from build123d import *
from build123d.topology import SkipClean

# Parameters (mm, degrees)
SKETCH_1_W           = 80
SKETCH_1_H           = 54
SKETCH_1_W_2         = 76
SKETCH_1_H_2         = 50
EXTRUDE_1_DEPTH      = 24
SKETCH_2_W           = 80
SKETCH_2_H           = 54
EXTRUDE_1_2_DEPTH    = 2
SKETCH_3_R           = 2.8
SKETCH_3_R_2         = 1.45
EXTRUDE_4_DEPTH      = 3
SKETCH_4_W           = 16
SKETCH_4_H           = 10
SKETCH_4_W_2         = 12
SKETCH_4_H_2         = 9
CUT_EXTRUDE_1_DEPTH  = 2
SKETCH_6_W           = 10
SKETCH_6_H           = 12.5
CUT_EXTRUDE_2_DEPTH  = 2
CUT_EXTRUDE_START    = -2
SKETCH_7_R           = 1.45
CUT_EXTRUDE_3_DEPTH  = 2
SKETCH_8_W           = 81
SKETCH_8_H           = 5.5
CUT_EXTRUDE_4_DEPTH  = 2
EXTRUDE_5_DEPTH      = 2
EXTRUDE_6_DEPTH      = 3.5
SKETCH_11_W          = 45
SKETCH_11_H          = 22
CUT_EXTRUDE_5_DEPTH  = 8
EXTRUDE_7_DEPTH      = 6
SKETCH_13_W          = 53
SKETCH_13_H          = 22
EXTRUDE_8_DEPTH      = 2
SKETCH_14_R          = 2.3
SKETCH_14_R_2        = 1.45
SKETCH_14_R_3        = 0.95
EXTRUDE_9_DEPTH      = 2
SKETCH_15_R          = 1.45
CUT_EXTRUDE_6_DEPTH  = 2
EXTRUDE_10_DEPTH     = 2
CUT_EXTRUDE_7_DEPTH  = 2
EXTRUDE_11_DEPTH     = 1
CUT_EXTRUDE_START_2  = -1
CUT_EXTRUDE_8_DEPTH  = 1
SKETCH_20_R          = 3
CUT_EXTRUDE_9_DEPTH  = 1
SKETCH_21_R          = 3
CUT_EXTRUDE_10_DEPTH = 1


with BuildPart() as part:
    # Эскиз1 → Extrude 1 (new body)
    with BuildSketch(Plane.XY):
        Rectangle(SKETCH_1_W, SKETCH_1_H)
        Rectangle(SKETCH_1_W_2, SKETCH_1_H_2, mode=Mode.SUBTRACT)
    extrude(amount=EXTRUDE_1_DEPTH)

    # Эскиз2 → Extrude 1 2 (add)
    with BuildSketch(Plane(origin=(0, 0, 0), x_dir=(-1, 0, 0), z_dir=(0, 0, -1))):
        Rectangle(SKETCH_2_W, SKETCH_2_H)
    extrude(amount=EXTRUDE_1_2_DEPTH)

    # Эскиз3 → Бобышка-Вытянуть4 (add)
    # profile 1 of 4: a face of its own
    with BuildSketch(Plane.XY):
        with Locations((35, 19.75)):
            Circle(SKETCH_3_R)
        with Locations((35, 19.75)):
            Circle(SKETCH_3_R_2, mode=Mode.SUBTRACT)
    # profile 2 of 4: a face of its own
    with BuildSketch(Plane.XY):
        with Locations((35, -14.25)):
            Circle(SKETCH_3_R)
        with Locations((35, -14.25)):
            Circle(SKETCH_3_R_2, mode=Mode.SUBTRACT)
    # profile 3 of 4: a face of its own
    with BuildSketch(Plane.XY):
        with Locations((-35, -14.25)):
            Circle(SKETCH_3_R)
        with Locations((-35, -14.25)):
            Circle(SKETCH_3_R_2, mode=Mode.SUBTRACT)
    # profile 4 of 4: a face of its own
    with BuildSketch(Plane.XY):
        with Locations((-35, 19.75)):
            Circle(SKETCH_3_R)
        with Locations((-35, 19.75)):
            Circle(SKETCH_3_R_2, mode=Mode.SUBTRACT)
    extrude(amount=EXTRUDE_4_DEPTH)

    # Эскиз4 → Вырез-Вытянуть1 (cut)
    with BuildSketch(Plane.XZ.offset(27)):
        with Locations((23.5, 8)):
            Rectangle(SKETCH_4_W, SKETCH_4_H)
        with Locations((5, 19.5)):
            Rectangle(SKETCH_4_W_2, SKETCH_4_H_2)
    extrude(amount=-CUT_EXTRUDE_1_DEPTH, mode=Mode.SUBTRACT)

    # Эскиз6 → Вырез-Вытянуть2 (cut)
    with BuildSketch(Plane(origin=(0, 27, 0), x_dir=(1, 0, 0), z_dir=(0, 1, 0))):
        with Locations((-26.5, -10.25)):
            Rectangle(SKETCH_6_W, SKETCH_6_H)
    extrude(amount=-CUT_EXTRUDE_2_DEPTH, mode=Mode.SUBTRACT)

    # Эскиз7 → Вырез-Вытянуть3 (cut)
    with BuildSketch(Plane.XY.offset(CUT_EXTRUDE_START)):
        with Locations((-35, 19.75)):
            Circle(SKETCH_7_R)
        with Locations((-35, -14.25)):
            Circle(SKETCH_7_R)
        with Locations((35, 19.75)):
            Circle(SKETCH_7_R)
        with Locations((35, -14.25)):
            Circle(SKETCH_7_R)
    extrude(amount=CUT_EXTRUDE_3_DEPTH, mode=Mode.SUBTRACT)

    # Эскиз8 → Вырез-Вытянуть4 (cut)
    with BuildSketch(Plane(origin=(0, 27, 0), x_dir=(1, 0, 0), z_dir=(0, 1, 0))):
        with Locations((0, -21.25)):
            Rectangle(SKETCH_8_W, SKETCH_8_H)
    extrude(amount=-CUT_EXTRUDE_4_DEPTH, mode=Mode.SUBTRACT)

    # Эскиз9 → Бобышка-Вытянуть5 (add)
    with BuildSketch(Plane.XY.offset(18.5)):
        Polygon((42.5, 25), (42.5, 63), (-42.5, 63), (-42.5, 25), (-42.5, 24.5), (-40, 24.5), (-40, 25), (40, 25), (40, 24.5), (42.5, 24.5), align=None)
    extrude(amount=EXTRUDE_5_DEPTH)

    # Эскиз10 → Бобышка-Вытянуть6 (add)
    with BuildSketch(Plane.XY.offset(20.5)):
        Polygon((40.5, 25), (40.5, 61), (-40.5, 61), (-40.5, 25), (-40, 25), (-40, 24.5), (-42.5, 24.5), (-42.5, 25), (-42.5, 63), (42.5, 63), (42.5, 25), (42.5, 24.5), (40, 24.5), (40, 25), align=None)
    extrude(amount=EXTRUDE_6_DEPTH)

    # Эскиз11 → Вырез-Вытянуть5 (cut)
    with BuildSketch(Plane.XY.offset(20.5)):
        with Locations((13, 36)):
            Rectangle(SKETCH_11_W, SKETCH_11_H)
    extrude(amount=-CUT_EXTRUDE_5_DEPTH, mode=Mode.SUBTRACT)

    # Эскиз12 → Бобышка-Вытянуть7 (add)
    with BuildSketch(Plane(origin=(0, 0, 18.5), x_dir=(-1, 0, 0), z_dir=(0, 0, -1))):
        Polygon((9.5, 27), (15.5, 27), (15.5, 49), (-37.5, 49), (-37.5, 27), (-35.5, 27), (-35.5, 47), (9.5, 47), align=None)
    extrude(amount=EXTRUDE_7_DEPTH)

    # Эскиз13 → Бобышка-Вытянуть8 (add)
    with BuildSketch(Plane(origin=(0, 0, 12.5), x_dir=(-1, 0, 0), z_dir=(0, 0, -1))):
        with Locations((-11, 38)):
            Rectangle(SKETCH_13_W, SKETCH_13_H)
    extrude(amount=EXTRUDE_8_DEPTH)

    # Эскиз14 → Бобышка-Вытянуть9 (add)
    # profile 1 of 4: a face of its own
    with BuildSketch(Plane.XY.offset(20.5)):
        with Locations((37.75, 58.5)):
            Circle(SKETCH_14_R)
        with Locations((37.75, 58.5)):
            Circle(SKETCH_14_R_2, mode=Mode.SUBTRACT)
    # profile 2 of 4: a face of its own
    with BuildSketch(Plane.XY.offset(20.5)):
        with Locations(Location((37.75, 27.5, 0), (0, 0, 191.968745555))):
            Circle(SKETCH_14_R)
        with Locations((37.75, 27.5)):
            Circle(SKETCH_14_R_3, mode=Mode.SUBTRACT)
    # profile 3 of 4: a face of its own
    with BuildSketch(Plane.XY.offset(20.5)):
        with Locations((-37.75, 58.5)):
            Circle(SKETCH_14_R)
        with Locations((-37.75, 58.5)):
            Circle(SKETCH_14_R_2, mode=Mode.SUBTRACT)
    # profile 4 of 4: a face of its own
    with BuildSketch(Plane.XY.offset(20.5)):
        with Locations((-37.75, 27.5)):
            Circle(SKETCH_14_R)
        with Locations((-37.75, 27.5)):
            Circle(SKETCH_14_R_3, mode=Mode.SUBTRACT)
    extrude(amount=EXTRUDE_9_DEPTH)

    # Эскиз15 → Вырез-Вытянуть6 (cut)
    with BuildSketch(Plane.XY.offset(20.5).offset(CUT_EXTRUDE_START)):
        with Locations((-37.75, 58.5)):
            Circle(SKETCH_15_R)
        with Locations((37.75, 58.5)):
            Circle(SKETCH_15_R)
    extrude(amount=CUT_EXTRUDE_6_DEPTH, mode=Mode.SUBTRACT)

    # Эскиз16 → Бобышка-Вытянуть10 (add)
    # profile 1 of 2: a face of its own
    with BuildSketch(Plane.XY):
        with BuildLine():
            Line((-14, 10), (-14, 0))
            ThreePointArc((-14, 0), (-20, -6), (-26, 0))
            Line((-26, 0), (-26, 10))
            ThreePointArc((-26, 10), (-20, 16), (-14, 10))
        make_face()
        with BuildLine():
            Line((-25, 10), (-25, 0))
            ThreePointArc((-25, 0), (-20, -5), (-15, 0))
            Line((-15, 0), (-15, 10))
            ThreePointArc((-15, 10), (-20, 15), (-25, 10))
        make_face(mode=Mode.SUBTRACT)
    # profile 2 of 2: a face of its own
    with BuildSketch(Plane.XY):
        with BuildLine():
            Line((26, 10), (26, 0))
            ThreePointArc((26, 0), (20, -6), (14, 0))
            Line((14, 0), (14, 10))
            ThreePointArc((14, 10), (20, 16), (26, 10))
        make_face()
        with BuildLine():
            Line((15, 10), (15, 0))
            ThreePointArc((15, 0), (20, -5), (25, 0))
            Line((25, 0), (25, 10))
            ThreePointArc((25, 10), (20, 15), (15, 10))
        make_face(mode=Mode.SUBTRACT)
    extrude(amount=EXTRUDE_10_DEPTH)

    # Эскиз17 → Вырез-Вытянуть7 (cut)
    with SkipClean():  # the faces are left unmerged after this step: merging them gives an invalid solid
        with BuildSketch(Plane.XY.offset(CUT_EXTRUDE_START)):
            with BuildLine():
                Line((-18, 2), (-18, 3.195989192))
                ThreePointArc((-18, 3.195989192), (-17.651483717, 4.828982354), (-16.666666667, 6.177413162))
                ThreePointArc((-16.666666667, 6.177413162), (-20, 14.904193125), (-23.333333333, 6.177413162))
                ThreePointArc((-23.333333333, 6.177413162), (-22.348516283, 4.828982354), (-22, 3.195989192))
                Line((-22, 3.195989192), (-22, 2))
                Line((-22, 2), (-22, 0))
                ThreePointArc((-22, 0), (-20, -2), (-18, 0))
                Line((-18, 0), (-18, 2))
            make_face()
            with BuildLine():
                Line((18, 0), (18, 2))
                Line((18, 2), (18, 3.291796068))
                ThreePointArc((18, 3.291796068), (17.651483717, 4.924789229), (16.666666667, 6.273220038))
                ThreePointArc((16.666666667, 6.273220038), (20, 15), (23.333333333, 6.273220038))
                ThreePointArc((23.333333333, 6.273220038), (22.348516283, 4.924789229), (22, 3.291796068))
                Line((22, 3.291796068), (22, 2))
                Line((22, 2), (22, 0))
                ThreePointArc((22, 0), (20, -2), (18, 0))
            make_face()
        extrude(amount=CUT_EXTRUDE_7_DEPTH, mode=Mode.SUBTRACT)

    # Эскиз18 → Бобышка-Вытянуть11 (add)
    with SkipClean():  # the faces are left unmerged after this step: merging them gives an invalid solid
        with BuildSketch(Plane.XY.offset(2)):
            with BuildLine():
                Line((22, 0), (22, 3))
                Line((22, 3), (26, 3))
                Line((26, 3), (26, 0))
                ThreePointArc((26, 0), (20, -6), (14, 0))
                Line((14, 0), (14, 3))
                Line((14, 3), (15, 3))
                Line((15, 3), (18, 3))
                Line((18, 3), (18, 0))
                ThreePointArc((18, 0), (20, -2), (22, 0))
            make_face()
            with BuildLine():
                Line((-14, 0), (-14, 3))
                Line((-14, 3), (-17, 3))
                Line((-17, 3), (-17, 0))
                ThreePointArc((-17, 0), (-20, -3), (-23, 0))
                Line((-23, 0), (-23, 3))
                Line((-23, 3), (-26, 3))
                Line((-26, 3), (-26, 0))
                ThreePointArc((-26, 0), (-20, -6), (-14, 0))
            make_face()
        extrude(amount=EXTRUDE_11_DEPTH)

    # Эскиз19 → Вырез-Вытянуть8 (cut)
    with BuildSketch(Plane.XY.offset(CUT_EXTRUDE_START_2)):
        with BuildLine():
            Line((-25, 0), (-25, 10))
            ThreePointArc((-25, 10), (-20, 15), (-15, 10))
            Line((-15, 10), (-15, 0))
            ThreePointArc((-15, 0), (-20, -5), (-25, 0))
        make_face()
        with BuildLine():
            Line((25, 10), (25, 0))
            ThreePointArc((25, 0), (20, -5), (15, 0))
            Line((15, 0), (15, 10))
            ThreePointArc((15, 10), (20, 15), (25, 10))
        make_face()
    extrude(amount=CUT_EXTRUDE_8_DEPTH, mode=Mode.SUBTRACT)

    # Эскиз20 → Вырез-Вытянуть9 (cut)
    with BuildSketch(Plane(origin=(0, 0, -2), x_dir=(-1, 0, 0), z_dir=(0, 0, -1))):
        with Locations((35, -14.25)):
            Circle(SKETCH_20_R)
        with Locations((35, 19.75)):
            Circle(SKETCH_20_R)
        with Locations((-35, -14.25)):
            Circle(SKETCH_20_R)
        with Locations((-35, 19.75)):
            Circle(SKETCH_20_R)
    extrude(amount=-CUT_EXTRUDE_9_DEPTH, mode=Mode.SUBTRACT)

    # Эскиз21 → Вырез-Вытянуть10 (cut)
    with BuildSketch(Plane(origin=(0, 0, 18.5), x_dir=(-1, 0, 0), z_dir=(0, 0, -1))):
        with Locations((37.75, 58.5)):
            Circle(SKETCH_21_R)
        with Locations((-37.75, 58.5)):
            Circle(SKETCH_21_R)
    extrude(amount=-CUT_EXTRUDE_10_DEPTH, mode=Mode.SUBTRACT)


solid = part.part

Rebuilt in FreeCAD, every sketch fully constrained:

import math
import FreeCAD as App
import Part
import Sketcher
Q = App.Units.Quantity


def add_polygon(sketch, points):
    """Adds a closed chain of lines whose ends are joined by coincident constraints."""
    first, n = sketch.GeometryCount, len(points)
    for a, b in zip(points, points[1:] + points[:1]):
        sketch.addGeometry(Part.LineSegment(App.Vector(*a, 0), App.Vector(*b, 0)), False)
    for i in range(n):
        sketch.addConstraint(Sketcher.Constraint("Coincident", first + i, 2, first + (i + 1) % n, 1))

doc = App.newDocument("Part")
body = doc.addObject("PartDesign::Body", "Body")

sketch1 = body.newObject("Sketcher::SketchObject", "Sketch")
sketch1.AttachmentSupport = (doc.getObject("XY_Plane"), [""])
sketch1.MapMode = "FlatFace"
add_polygon(sketch1, [(-40, 27), (-40, -27), (40, -27), (40, 27)])
add_polygon(sketch1, [(38, -25), (-38, -25), (-38, 25), (38, 25)])
sketch1.addConstraint([
    Sketcher.Constraint("Vertical", 0),
    Sketcher.Constraint("Horizontal", 1),
    Sketcher.Constraint("Vertical", 2),
    Sketcher.Constraint("Horizontal", 3),
    Sketcher.Constraint("Horizontal", 4),
    Sketcher.Constraint("Vertical", 5),
    Sketcher.Constraint("Horizontal", 6),
    Sketcher.Constraint("Vertical", 7),
    Sketcher.Constraint("Symmetric", 0, 2, 2, 2, -1, 1),
    Sketcher.Constraint("Symmetric", 4, 2, 6, 2, -1, 1),
    Sketcher.Constraint("DistanceX", 1, 1, 1, 2, Q("80 mm")),
    Sketcher.Constraint("DistanceX", 4, 2, 4, 1, Q("76 mm")),
    Sketcher.Constraint("DistanceY", 0, 2, 0, 1, Q("54 mm")),
    Sketcher.Constraint("DistanceY", 5, 1, 5, 2, Q("50 mm")),
])
pad1 = body.newObject("PartDesign::Pad", "Pad")
pad1.Profile = sketch1
pad1.Length = 24

sketch2 = body.newObject("Sketcher::SketchObject", "Sketch001")
sketch2.AttachmentSupport = (doc.getObject("XY_Plane"), [""])
sketch2.MapMode = "FlatFace"
add_polygon(sketch2, [(40, 27), (40, -27), (-40, -27), (-40, 27)])
sketch2.addConstraint([
    Sketcher.Constraint("Vertical", 0),
    Sketcher.Constraint("Horizontal", 1),
    Sketcher.Constraint("Vertical", 2),
    Sketcher.Constraint("Horizontal", 3),
    Sketcher.Constraint("Symmetric", 0, 2, 2, 2, -1, 1),
    Sketcher.Constraint("DistanceX", 1, 2, 1, 1, Q("80 mm")),
    Sketcher.Constraint("DistanceY", 0, 2, 0, 1, Q("54 mm")),
])
pad2 = body.newObject("PartDesign::Pad", "Pad001")
pad2.Profile = sketch2
pad2.Length = 2
pad2.Reversed = True

sketch3 = body.newObject("Sketcher::SketchObject", "Sketch002")
sketch3.AttachmentSupport = (doc.getObject("XY_Plane"), [""])
sketch3.MapMode = "FlatFace"
sketch3.addGeometry([
    Part.Circle(App.Vector(35, 19.8, 0), App.Vector(0, 0, 1), 2.8),
    Part.Circle(App.Vector(35, 19.8, 0), App.Vector(0, 0, 1), 1.4),
    Part.Circle(App.Vector(35, -14.2, 0), App.Vector(0, 0, 1), 2.8),
    Part.Circle(App.Vector(35, -14.2, 0), App.Vector(0, 0, 1), 1.4),
    Part.Circle(App.Vector(-35, -14.2, 0), App.Vector(0, 0, 1), 2.8),
    Part.Circle(App.Vector(-35, -14.2, 0), App.Vector(0, 0, 1), 1.4),
    Part.Circle(App.Vector(-35, 19.8, 0), App.Vector(0, 0, 1), 2.8),
    Part.Circle(App.Vector(-35, 19.8, 0), App.Vector(0, 0, 1), 1.4),
], False)
sketch3.addConstraint([
    Sketcher.Constraint("Coincident", 1, 3, 0, 3),
    Sketcher.Constraint("Coincident", 3, 3, 2, 3),
    Sketcher.Constraint("Coincident", 5, 3, 4, 3),
    Sketcher.Constraint("Coincident", 7, 3, 6, 3),
    Sketcher.Constraint("Equal", 0, 2),
    Sketcher.Constraint("Equal", 1, 3),
    Sketcher.Constraint("Equal", 2, 4),
    Sketcher.Constraint("Equal", 3, 5),
    Sketcher.Constraint("Equal", 4, 6),
    Sketcher.Constraint("Equal", 5, 7),
    Sketcher.Constraint("Symmetric", 2, 3, 4, 3, -2),
    Sketcher.Constraint("Symmetric", 0, 3, 6, 3, -2),
    Sketcher.Constraint("Vertical", 1, 3, 2, 3),
    Sketcher.Constraint("Diameter", 0, Q("5.6 mm")),
    Sketcher.Constraint("Diameter", 1, Q("2.9 mm")),
    Sketcher.Constraint("DistanceX", -1, 1, 0, 3, Q("35 mm")),
    Sketcher.Constraint("DistanceY", 2, 3, 0, 3, Q("34 mm")),
    Sketcher.Constraint("DistanceY", -1, 1, 0, 3, Q("19.75 mm")),
])
pad3 = body.newObject("PartDesign::Pad", "Pad002")
pad3.Profile = sketch3
pad3.Length = 3

sketch4 = body.newObject("Sketcher::SketchObject", "Sketch003")
sketch4.AttachmentSupport = (doc.getObject("XZ_Plane"), [""])
sketch4.MapMode = "FlatFace"
sketch4.AttachmentOffset = App.Placement(App.Vector(0, 0, 27), App.Rotation())
add_polygon(sketch4, [(16, 13), (16, 3), (32, 3), (32, 13)])
add_polygon(sketch4, [(-1, 24), (-1, 15), (11, 15), (11, 24)])
sketch4.addConstraint([
    Sketcher.Constraint("Vertical", 0),
    Sketcher.Constraint("Horizontal", 1),
    Sketcher.Constraint("Vertical", 2),
    Sketcher.Constraint("Horizontal", 3),
    Sketcher.Constraint("Vertical", 4),
    Sketcher.Constraint("Horizontal", 5),
    Sketcher.Constraint("Vertical", 6),
    Sketcher.Constraint("Horizontal", 7),
    Sketcher.Constraint("DistanceX", 1, 1, 1, 2, Q("16 mm")),
    Sketcher.Constraint("DistanceX", 5, 1, 5, 2, Q("12 mm")),
    Sketcher.Constraint("DistanceY", 0, 2, 0, 1, Q("10 mm")),
    Sketcher.Constraint("DistanceY", 4, 2, 4, 1, Q("9 mm")),
    Sketcher.Constraint("DistanceY", -1, 1, 0, 2, Q("3 mm")),
    Sketcher.Constraint("DistanceX", 4, 2, -1, 1, Q("1 mm")),
    Sketcher.Constraint("DistanceY", -1, 1, 4, 2, Q("15 mm")),
    Sketcher.Constraint("DistanceX", -1, 1, 0, 2, Q("15.5 mm")),
])
pocket1 = body.newObject("PartDesign::Pocket", "Pocket")
pocket1.Profile = sketch4
pocket1.Length = 2

sketch5 = body.newObject("Sketcher::SketchObject", "Sketch004")
sketch5.AttachmentSupport = (doc.getObject("XZ_Plane"), [""])
sketch5.MapMode = "FlatFace"
sketch5.AttachmentOffset = App.Placement(App.Vector(0, 0, -27), App.Rotation())
add_polygon(sketch5, [(-32, 4), (-32, 16), (-22, 16), (-22, 4)])
sketch5.addConstraint([
    Sketcher.Constraint("Vertical", 0),
    Sketcher.Constraint("Horizontal", 1),
    Sketcher.Constraint("Vertical", 2),
    Sketcher.Constraint("Horizontal", 3),
    Sketcher.Constraint("DistanceX", 1, 1, 1, 2, Q("10 mm")),
    Sketcher.Constraint("DistanceY", 0, 1, 0, 2, Q("12.5 mm")),
    Sketcher.Constraint("DistanceY", -1, 1, 2, 2, Q("4 mm")),
    Sketcher.Constraint("DistanceX", 0, 2, -1, 1, Q("31.5 mm")),
])
pocket2 = body.newObject("PartDesign::Pocket", "Pocket001")
pocket2.Profile = sketch5
pocket2.Length = 2
pocket2.Reversed = True

sketch6 = body.newObject("Sketcher::SketchObject", "Sketch005")
sketch6.AttachmentSupport = (doc.getObject("XY_Plane"), [""])
sketch6.MapMode = "FlatFace"
sketch6.AttachmentOffset = App.Placement(App.Vector(0, 0, -2), App.Rotation())
sketch6.addGeometry([
    Part.Circle(App.Vector(-35, 19.8, 0), App.Vector(0, 0, 1), 1.4),
    Part.Circle(App.Vector(-35, -14.2, 0), App.Vector(0, 0, 1), 1.4),
    Part.Circle(App.Vector(35, 19.8, 0), App.Vector(0, 0, 1), 1.4),
    Part.Circle(App.Vector(35, -14.2, 0), App.Vector(0, 0, 1), 1.4),
], False)
sketch6.addConstraint([
    Sketcher.Constraint("Equal", 0, 1),
    Sketcher.Constraint("Equal", 1, 2),
    Sketcher.Constraint("Equal", 2, 3),
    Sketcher.Constraint("Symmetric", 0, 3, 2, 3, -2),
    Sketcher.Constraint("Symmetric", 1, 3, 3, 3, -2),
    Sketcher.Constraint("Vertical", 0, 3, 1, 3),
    Sketcher.Constraint("Diameter", 0, Q("2.9 mm")),
    Sketcher.Constraint("DistanceX", 0, 3, -1, 1, Q("35 mm")),
    Sketcher.Constraint("DistanceY", 1, 3, 0, 3, Q("34 mm")),
    Sketcher.Constraint("DistanceY", -1, 1, 0, 3, Q("19.75 mm")),
])
pocket3 = body.newObject("PartDesign::Pocket", "Pocket002")
pocket3.Profile = sketch6
pocket3.Length = 2
pocket3.Reversed = True

sketch7 = body.newObject("Sketcher::SketchObject", "Sketch006")
sketch7.AttachmentSupport = (doc.getObject("XZ_Plane"), [""])
sketch7.MapMode = "FlatFace"
sketch7.AttachmentOffset = App.Placement(App.Vector(0, 0, -27), App.Rotation())
add_polygon(sketch7, [(-40, 18), (-40, 24), (40, 24), (40, 18)])
sketch7.addConstraint([
    Sketcher.Constraint("Vertical", 0),
    Sketcher.Constraint("Horizontal", 1),
    Sketcher.Constraint("Vertical", 2),
    Sketcher.Constraint("Horizontal", 3),
    Sketcher.Constraint("DistanceX", 1, 1, 1, 2, Q("81 mm")),
    Sketcher.Constraint("DistanceY", 0, 1, 0, 2, Q("5.5 mm")),
    Sketcher.Constraint("DistanceY", -1, 1, 0, 2, Q("24 mm")),
    Sketcher.Constraint("DistanceX", 0, 2, -1, 1, Q("40.5 mm")),
])
pocket4 = body.newObject("PartDesign::Pocket", "Pocket003")
pocket4.Profile = sketch7
pocket4.Length = 2
pocket4.Reversed = True

sketch8 = body.newObject("Sketcher::SketchObject", "Sketch007")
sketch8.AttachmentSupport = (doc.getObject("XY_Plane"), [""])
sketch8.MapMode = "FlatFace"
sketch8.AttachmentOffset = App.Placement(App.Vector(0, 0, 18.5), App.Rotation())
add_polygon(sketch8, [(42.5, 63), (-42.5, 63), (-42.5, 24.5), (-40, 24.5), (-40, 25), (40, 25), (40, 24.5), (42.5, 24.5)])
sketch8.addConstraint([
    Sketcher.Constraint("Horizontal", 0),
    Sketcher.Constraint("Vertical", 1),
    Sketcher.Constraint("Horizontal", 2),
    Sketcher.Constraint("Vertical", 3),
    Sketcher.Constraint("Horizontal", 4),
    Sketcher.Constraint("Vertical", 5),
    Sketcher.Constraint("Horizontal", 6),
    Sketcher.Constraint("Vertical", 7),
    Sketcher.Constraint("Symmetric", 2, 2, 5, 2, -2),
    Sketcher.Constraint("Equal", 2, 6),
    Sketcher.Constraint("DistanceX", 0, 2, 0, 1, Q("85 mm")),
    Sketcher.Constraint("DistanceX", 4, 1, 4, 2, Q("80 mm")),
    Sketcher.Constraint("DistanceY", 1, 2, 1, 1, Q("38.5 mm")),
    Sketcher.Constraint("DistanceY", 3, 1, 3, 2, Q("0.5 mm")),
    Sketcher.Constraint("DistanceY", -1, 1, 0, 2, Q("63 mm")),
])
pad4 = body.newObject("PartDesign::Pad", "Pad003")
pad4.Profile = sketch8
pad4.Length = 2

sketch9 = body.newObject("Sketcher::SketchObject", "Sketch008")
sketch9.AttachmentSupport = (doc.getObject("XY_Plane"), [""])
sketch9.MapMode = "FlatFace"
sketch9.AttachmentOffset = App.Placement(App.Vector(0, 0, 20.5), App.Rotation())
add_polygon(sketch9, [(40.5, 61), (40.5, 25), (40, 25), (40, 24.5), (42.5, 24.5), (42.5, 63), (-42.5, 63), (-42.5, 24.5), (-40, 24.5), (-40, 25), (-40.5, 25), (-40.5, 61)])
sketch9.addConstraint([
    Sketcher.Constraint("Vertical", 0),
    Sketcher.Constraint("Horizontal", 1),
    Sketcher.Constraint("Vertical", 2),
    Sketcher.Constraint("Horizontal", 3),
    Sketcher.Constraint("Vertical", 4),
    Sketcher.Constraint("Horizontal", 5),
    Sketcher.Constraint("Vertical", 6),
    Sketcher.Constraint("Horizontal", 7),
    Sketcher.Constraint("Vertical", 8),
    Sketcher.Constraint("Horizontal", 9),
    Sketcher.Constraint("Vertical", 10),
    Sketcher.Constraint("Horizontal", 11),
    Sketcher.Constraint("Symmetric", 3, 2, 6, 2, -2),
    Sketcher.Constraint("Symmetric", 1, 2, 8, 2, -2),
    Sketcher.Constraint("Equal", 1, 9),
    Sketcher.Constraint("Equal", 9, 2),
    Sketcher.Constraint("DistanceX", 5, 2, 5, 1, Q("85 mm")),
    Sketcher.Constraint("DistanceX", 11, 1, 11, 2, Q("81 mm")),
    Sketcher.Constraint("DistanceY", 0, 2, 0, 1, Q("36 mm")),
    Sketcher.Constraint("DistanceX", 1, 2, 1, 1, Q("0.5 mm")),
    Sketcher.Constraint("DistanceY", 4, 1, 4, 2, Q("38.5 mm")),
    Sketcher.Constraint("DistanceY", -1, 1, 0, 2, Q("25 mm")),
])
pad5 = body.newObject("PartDesign::Pad", "Pad004")
pad5.Profile = sketch9
pad5.Length = 3.5

sketch10 = body.newObject("Sketcher::SketchObject", "Sketch009")
sketch10.AttachmentSupport = (doc.getObject("XY_Plane"), [""])
sketch10.MapMode = "FlatFace"
sketch10.AttachmentOffset = App.Placement(App.Vector(0, 0, 20.5), App.Rotation())
add_polygon(sketch10, [(-10, 47), (-10, 25), (36, 25), (36, 47)])
sketch10.addConstraint([
    Sketcher.Constraint("Vertical", 0),
    Sketcher.Constraint("Horizontal", 1),
    Sketcher.Constraint("Vertical", 2),
    Sketcher.Constraint("Horizontal", 3),
    Sketcher.Constraint("DistanceX", 1, 1, 1, 2, Q("45 mm")),
    Sketcher.Constraint("DistanceY", 0, 2, 0, 1, Q("22 mm")),
    Sketcher.Constraint("DistanceY", -1, 1, 0, 2, Q("25 mm")),
    Sketcher.Constraint("DistanceX", 0, 2, -1, 1, Q("9.5 mm")),
])
pocket5 = body.newObject("PartDesign::Pocket", "Pocket004")
pocket5.Profile = sketch10
pocket5.Length = 8

sketch11 = body.newObject("Sketcher::SketchObject", "Sketch010")
sketch11.AttachmentSupport = (doc.getObject("XY_Plane"), [""])
sketch11.MapMode = "FlatFace"
sketch11.AttachmentOffset = App.Placement(App.Vector(0, 0, 18.5), App.Rotation())
add_polygon(sketch11, [(-9.5, 27), (-15.5, 27), (-15.5, 49), (37.5, 49), (37.5, 27), (35.5, 27), (35.5, 47), (-9.5, 47)])
sketch11.addConstraint([
    Sketcher.Constraint("Horizontal", 0),
    Sketcher.Constraint("Vertical", 1),
    Sketcher.Constraint("Horizontal", 2),
    Sketcher.Constraint("Vertical", 3),
    Sketcher.Constraint("Horizontal", 4),
    Sketcher.Constraint("Vertical", 5),
    Sketcher.Constraint("Horizontal", 6),
    Sketcher.Constraint("Vertical", 7),
    Sketcher.Constraint("Horizontal", 0, 2, 3, 2),
    Sketcher.Constraint("DistanceX", 0, 2, 0, 1, Q("6 mm")),
    Sketcher.Constraint("DistanceX", 2, 1, 2, 2, Q("53 mm")),
    Sketcher.Constraint("DistanceX", 4, 2, 4, 1, Q("2 mm")),
    Sketcher.Constraint("DistanceY", 1, 1, 1, 2, Q("22 mm")),
    Sketcher.Constraint("DistanceY", 5, 1, 5, 2, Q("20 mm")),
    Sketcher.Constraint("DistanceY", -1, 1, 0, 2, Q("27 mm")),
    Sketcher.Constraint("DistanceX", 0, 2, -1, 1, Q("15.5 mm")),
])
pad6 = body.newObject("PartDesign::Pad", "Pad005")
pad6.Profile = sketch11
pad6.Length = 6
pad6.Reversed = True

sketch12 = body.newObject("Sketcher::SketchObject", "Sketch011")
sketch12.AttachmentSupport = (doc.getObject("XY_Plane"), [""])
sketch12.MapMode = "FlatFace"
sketch12.AttachmentOffset = App.Placement(App.Vector(0, 0, 12.5), App.Rotation())
add_polygon(sketch12, [(38, 49), (38, 27), (-16, 27), (-16, 49)])
sketch12.addConstraint([
    Sketcher.Constraint("Vertical", 0),
    Sketcher.Constraint("Horizontal", 1),
    Sketcher.Constraint("Vertical", 2),
    Sketcher.Constraint("Horizontal", 3),
    Sketcher.Constraint("DistanceX", 1, 2, 1, 1, Q("53 mm")),
    Sketcher.Constraint("DistanceY", 0, 2, 0, 1, Q("22 mm")),
    Sketcher.Constraint("DistanceY", -1, 1, 0, 2, Q("27 mm")),
    Sketcher.Constraint("DistanceX", -1, 1, 0, 2, Q("37.5 mm")),
])
pad7 = body.newObject("PartDesign::Pad", "Pad006")
pad7.Profile = sketch12
pad7.Length = 2
pad7.Reversed = True

sketch13 = body.newObject("Sketcher::SketchObject", "Sketch012")
sketch13.AttachmentSupport = (doc.getObject("XY_Plane"), [""])
sketch13.MapMode = "FlatFace"
sketch13.AttachmentOffset = App.Placement(App.Vector(0, 0, 20.5), App.Rotation())
sketch13.addGeometry([
    Part.Circle(App.Vector(37.8, 58.5, 0), App.Vector(0, 0, 1), 2.3),
    Part.Circle(App.Vector(37.8, 58.5, 0), App.Vector(0, 0, 1), 1.4),
    Part.Circle(App.Vector(37.8, 27.5, 0), App.Vector(0, 0, 1), 2.3),
    Part.Circle(App.Vector(37.8, 27.5, 0), App.Vector(0, 0, 1), 0.9),
    Part.Circle(App.Vector(-37.8, 58.5, 0), App.Vector(0, 0, 1), 2.3),
    Part.Circle(App.Vector(-37.8, 58.5, 0), App.Vector(0, 0, 1), 1.4),
    Part.Circle(App.Vector(-37.8, 27.5, 0), App.Vector(0, 0, 1), 2.3),
    Part.Circle(App.Vector(-37.8, 27.5, 0), App.Vector(0, 0, 1), 0.9),
], False)
sketch13.addConstraint([
    Sketcher.Constraint("Coincident", 1, 3, 0, 3),
    Sketcher.Constraint("Coincident", 3, 3, 2, 3),
    Sketcher.Constraint("Coincident", 5, 3, 4, 3),
    Sketcher.Constraint("Coincident", 7, 3, 6, 3),
    Sketcher.Constraint("Equal", 0, 2),
    Sketcher.Constraint("Equal", 2, 4),
    Sketcher.Constraint("Equal", 1, 5),
    Sketcher.Constraint("Equal", 4, 6),
    Sketcher.Constraint("Equal", 3, 7),
    Sketcher.Constraint("Symmetric", 0, 3, 4, 3, -2),
    Sketcher.Constraint("Symmetric", 2, 3, 6, 3, -2),
    Sketcher.Constraint("Vertical", 1, 3, 2, 3),
    Sketcher.Constraint("Diameter", 0, Q("4.6 mm")),
    Sketcher.Constraint("Diameter", 1, Q("2.9 mm")),
    Sketcher.Constraint("Diameter", 3, Q("1.9 mm")),
    Sketcher.Constraint("DistanceY", 2, 3, 0, 3, Q("31 mm")),
    Sketcher.Constraint("DistanceY", -1, 1, 0, 3, Q("58.5 mm")),
    Sketcher.Constraint("DistanceX", 4, 3, 0, 3, Q("75.5 mm")),
])
pad8 = body.newObject("PartDesign::Pad", "Pad007")
pad8.Profile = sketch13
pad8.Length = 2

sketch14 = body.newObject("Sketcher::SketchObject", "Sketch013")
sketch14.AttachmentSupport = (doc.getObject("XY_Plane"), [""])
sketch14.MapMode = "FlatFace"
sketch14.AttachmentOffset = App.Placement(App.Vector(0, 0, 18.5), App.Rotation())
sketch14.addGeometry([
    Part.Circle(App.Vector(-37.8, 58.5, 0), App.Vector(0, 0, 1), 1.4),
    Part.Circle(App.Vector(37.8, 58.5, 0), App.Vector(0, 0, 1), 1.4),
], False)
sketch14.addConstraint([
    Sketcher.Constraint("Equal", 0, 1),
    Sketcher.Constraint("Symmetric", 0, 3, 1, 3, -2),
    Sketcher.Constraint("Diameter", 0, Q("2.9 mm")),
    Sketcher.Constraint("DistanceY", -1, 1, 0, 3, Q("58.5 mm")),
    Sketcher.Constraint("DistanceX", 0, 3, 1, 3, Q("75.5 mm")),
])
pocket6 = body.newObject("PartDesign::Pocket", "Pocket005")
pocket6.Profile = sketch14
pocket6.Length = 2
pocket6.Reversed = True

sketch15 = body.newObject("Sketcher::SketchObject", "Sketch014")
sketch15.AttachmentSupport = (doc.getObject("XY_Plane"), [""])
sketch15.MapMode = "FlatFace"
sketch15.addGeometry([
    Part.LineSegment(App.Vector(-14, 0, 0), App.Vector(-14, 10, 0)),
    Part.ArcOfCircle(Part.Circle(App.Vector(-20, 10, 0), App.Vector(0, 0, 1), 6), math.radians(0), math.radians(180)),
    Part.LineSegment(App.Vector(-26, 10, 0), App.Vector(-26, 0, 0)),
    Part.ArcOfCircle(Part.Circle(App.Vector(-20, 0, 0), App.Vector(0, 0, 1), 6), math.radians(180), math.radians(360)),
    Part.ArcOfCircle(Part.Circle(App.Vector(-20, 10, 0), App.Vector(0, 0, 1), 5), math.radians(0), math.radians(180)),
    Part.LineSegment(App.Vector(-15, 10, 0), App.Vector(-15, 0, 0)),
    Part.ArcOfCircle(Part.Circle(App.Vector(-20, 0, 0), App.Vector(0, 0, 1), 5), math.radians(180), math.radians(360)),
    Part.LineSegment(App.Vector(-25, 0, 0), App.Vector(-25, 10, 0)),
    Part.LineSegment(App.Vector(26, 0, 0), App.Vector(26, 10, 0)),
    Part.ArcOfCircle(Part.Circle(App.Vector(20, 10, 0), App.Vector(0, 0, 1), 6), math.radians(0), math.radians(180)),
    Part.LineSegment(App.Vector(14, 10, 0), App.Vector(14, 0, 0)),
    Part.ArcOfCircle(Part.Circle(App.Vector(20, 0, 0), App.Vector(0, 0, 1), 6), math.radians(180), math.radians(360)),
    Part.ArcOfCircle(Part.Circle(App.Vector(20, 10, 0), App.Vector(0, 0, 1), 5), math.radians(0), math.radians(180)),
    Part.LineSegment(App.Vector(25, 10, 0), App.Vector(25, 0, 0)),
    Part.ArcOfCircle(Part.Circle(App.Vector(20, 0, 0), App.Vector(0, 0, 1), 5), math.radians(180), math.radians(360)),
    Part.LineSegment(App.Vector(15, 0, 0), App.Vector(15, 10, 0)),
], False)
sketch15.addConstraint([
    Sketcher.Constraint("Tangent", 0, 2, 1, 1),
    Sketcher.Constraint("Tangent", 1, 2, 2, 1),
    Sketcher.Constraint("Tangent", 2, 2, 3, 1),
    Sketcher.Constraint("Tangent", 3, 2, 0, 1),
    Sketcher.Constraint("Tangent", 4, 1, 5, 1),
    Sketcher.Constraint("Tangent", 5, 2, 6, 2),
    Sketcher.Constraint("Tangent", 6, 1, 7, 1),
    Sketcher.Constraint("Tangent", 7, 2, 4, 2),
    Sketcher.Constraint("Tangent", 8, 2, 9, 1),
    Sketcher.Constraint("Tangent", 9, 2, 10, 1),
    Sketcher.Constraint("Tangent", 10, 2, 11, 1),
    Sketcher.Constraint("Tangent", 11, 2, 8, 1),
    Sketcher.Constraint("Tangent", 12, 1, 13, 1),
    Sketcher.Constraint("Tangent", 13, 2, 14, 2),
    Sketcher.Constraint("Tangent", 14, 1, 15, 1),
    Sketcher.Constraint("Tangent", 15, 2, 12, 2),
    Sketcher.Constraint("Vertical", 0),
    Sketcher.Constraint("Vertical", 2),
    Sketcher.Constraint("Vertical", 5),
    Sketcher.Constraint("Vertical", 7),
    Sketcher.Constraint("Vertical", 8),
    Sketcher.Constraint("Vertical", 10),
    Sketcher.Constraint("Vertical", 13),
    Sketcher.Constraint("Vertical", 15),
    Sketcher.Constraint("Coincident", 4, 3, 1, 3),
    Sketcher.Constraint("Coincident", 12, 3, 9, 3),
    Sketcher.Constraint("Equal", 3, 9),
    Sketcher.Constraint("Equal", 6, 12),
    Sketcher.Constraint("Symmetric", 3, 3, 11, 3, -1, 1),
    Sketcher.Constraint("PointOnObject", 3, 3, -1),
    Sketcher.Constraint("PointOnObject", 6, 3, -1),
    Sketcher.Constraint("PointOnObject", 14, 3, -1),
    Sketcher.Constraint("Horizontal", 4, 3, 9, 3),
    Sketcher.Constraint("Radius", 1, Q("6 mm")),
    Sketcher.Constraint("Radius", 4, Q("5 mm")),
    Sketcher.Constraint("DistanceY", 0, 1, 0, 2, Q("10 mm")),
    Sketcher.Constraint("DistanceX", 1, 3, -1, 1, Q("20 mm")),
])
pad9 = body.newObject("PartDesign::Pad", "Pad008")
pad9.Profile = sketch15
pad9.Length = 2

sketch16 = body.newObject("Sketcher::SketchObject", "Sketch015")
sketch16.AttachmentSupport = (doc.getObject("XY_Plane"), [""])
sketch16.MapMode = "FlatFace"
sketch16.AttachmentOffset = App.Placement(App.Vector(0, 0, -2), App.Rotation())
sketch16.addGeometry([
    Part.ArcOfCircle(Part.Circle(App.Vector(-14, 3.2, 0), App.Vector(0, 0, 1), 4), math.radians(132), math.radians(180)),
    Part.ArcOfCircle(Part.Circle(App.Vector(-20, 9.9, 0), App.Vector(0, 0, 1), 5), math.radians(-48), math.radians(228)),
    Part.ArcOfCircle(Part.Circle(App.Vector(-26, 3.2, 0), App.Vector(0, 0, 1), 4), math.radians(0), math.radians(48)),
    Part.LineSegment(App.Vector(-22, 3.2, 0), App.Vector(-22, 0, 0)),
    Part.ArcOfCircle(Part.Circle(App.Vector(-20, 0, 0), App.Vector(0, 0, 1), 2), math.radians(180), math.radians(360)),
    Part.LineSegment(App.Vector(-18, 0, 0), App.Vector(-18, 3.2, 0)),
    Part.LineSegment(App.Vector(18, 2, 0), App.Vector(18, 0, 0)),
    Part.ArcOfCircle(Part.Circle(App.Vector(20, 0, 0), App.Vector(0, 0, 1), 2), math.radians(180), math.radians(360)),
    Part.LineSegment(App.Vector(22, 0, 0), App.Vector(22, 2, 0)),
    Part.LineSegment(App.Vector(22, 2, 0), App.Vector(22, 3.3, 0)),
    Part.ArcOfCircle(Part.Circle(App.Vector(26, 3.3, 0), App.Vector(0, 0, 1), 4), math.radians(132), math.radians(180)),
    Part.ArcOfCircle(Part.Circle(App.Vector(20, 10, 0), App.Vector(0, 0, 1), 5), math.radians(-48), math.radians(228)),
    Part.ArcOfCircle(Part.Circle(App.Vector(14, 3.3, 0), App.Vector(0, 0, 1), 4), math.radians(0), math.radians(48)),
    Part.LineSegment(App.Vector(18, 3.3, 0), App.Vector(18, 2, 0)),
], False)
sketch16.addConstraint([
    Sketcher.Constraint("Tangent", 0, 1, 1, 1),
    Sketcher.Constraint("Tangent", 1, 2, 2, 2),
    Sketcher.Constraint("Tangent", 2, 1, 3, 1),
    Sketcher.Constraint("Tangent", 3, 2, 4, 1),
    Sketcher.Constraint("Tangent", 4, 2, 5, 1),
    Sketcher.Constraint("Tangent", 5, 2, 0, 2),
    Sketcher.Constraint("Tangent", 6, 2, 7, 1),
    Sketcher.Constraint("Tangent", 7, 2, 8, 1),
    Sketcher.Constraint("Coincident", 8, 2, 9, 1),
    Sketcher.Constraint("Tangent", 9, 2, 10, 2),
    Sketcher.Constraint("Tangent", 10, 1, 11, 1),
    Sketcher.Constraint("Tangent", 11, 2, 12, 2),
    Sketcher.Constraint("Tangent", 12, 1, 13, 1),
    Sketcher.Constraint("Coincident", 13, 2, 6, 1),
    Sketcher.Constraint("Vertical", 3),
    Sketcher.Constraint("Vertical", 5),
    Sketcher.Constraint("Vertical", 6),
    Sketcher.Constraint("Vertical", 8),
    Sketcher.Constraint("Vertical", 9),
    Sketcher.Constraint("Vertical", 13),
    Sketcher.Constraint("Equal", 0, 2),
    Sketcher.Constraint("Equal", 4, 7),
    Sketcher.Constraint("Equal", 2, 10),
    Sketcher.Constraint("Equal", 1, 11),
    Sketcher.Constraint("Equal", 10, 12),
    Sketcher.Constraint("Symmetric", 4, 3, 7, 3, -1, 1),
    Sketcher.Constraint("PointOnObject", 4, 3, -1),
    Sketcher.Constraint("Horizontal", 0, 3, 2, 3),
    Sketcher.Constraint("Horizontal", 10, 3, 12, 3),
    Sketcher.Constraint("Horizontal", 8, 2, 13, 2),
    Sketcher.Constraint("Radius", 0, Q("4 mm")),
    Sketcher.Constraint("Radius", 1, Q("5 mm")),
    Sketcher.Constraint("Radius", 4, Q("2 mm")),
    Sketcher.Constraint("DistanceY", 6, 2, 6, 1, Q("2 mm")),
    Sketcher.Constraint("DistanceX", 0, 3, -1, 1, Q("14 mm")),
    Sketcher.Constraint("DistanceY", -1, 1, 11, 3, Q("10 mm")),
    Sketcher.Constraint("DistanceY", 3, 2, 3, 1, Q("3.195989 mm")),
])
pocket7 = body.newObject("PartDesign::Pocket", "Pocket006")
pocket7.Profile = sketch16
pocket7.Length = 2
pocket7.Reversed = True

sketch17 = body.newObject("Sketcher::SketchObject", "Sketch016")
sketch17.AttachmentSupport = (doc.getObject("XY_Plane"), [""])
sketch17.MapMode = "FlatFace"
sketch17.AttachmentOffset = App.Placement(App.Vector(0, 0, 2), App.Rotation())
sketch17.addGeometry([
    Part.LineSegment(App.Vector(22, 3, 0), App.Vector(22, 0, 0)),
    Part.ArcOfCircle(Part.Circle(App.Vector(20, 0, 0), App.Vector(0, 0, 1), 2), math.radians(180), math.radians(360)),
    Part.LineSegment(App.Vector(18, 0, 0), App.Vector(18, 3, 0)),
    Part.LineSegment(App.Vector(18, 3, 0), App.Vector(14, 3, 0)),
    Part.LineSegment(App.Vector(14, 3, 0), App.Vector(14, 0, 0)),
    Part.ArcOfCircle(Part.Circle(App.Vector(20, 0, 0), App.Vector(0, 0, 1), 6), math.radians(180), math.radians(360)),
    Part.LineSegment(App.Vector(26, 0, 0), App.Vector(26, 3, 0)),
    Part.LineSegment(App.Vector(26, 3, 0), App.Vector(22, 3, 0)),
    Part.LineSegment(App.Vector(-14, 0, 0), App.Vector(-14, 3, 0)),
    Part.LineSegment(App.Vector(-14, 3, 0), App.Vector(-17, 3, 0)),
    Part.LineSegment(App.Vector(-17, 3, 0), App.Vector(-17, 0, 0)),
    Part.ArcOfCircle(Part.Circle(App.Vector(-20, 0, 0), App.Vector(0, 0, 1), 3), math.radians(180), math.radians(360)),
    Part.LineSegment(App.Vector(-23, 0, 0), App.Vector(-23, 3, 0)),
    Part.LineSegment(App.Vector(-23, 3, 0), App.Vector(-26, 3, 0)),
    Part.LineSegment(App.Vector(-26, 3, 0), App.Vector(-26, 0, 0)),
    Part.ArcOfCircle(Part.Circle(App.Vector(-20, 0, 0), App.Vector(0, 0, 1), 6), math.radians(180), math.radians(360)),
], False)
sketch17.addConstraint([
    Sketcher.Constraint("Tangent", 0, 2, 1, 2),
    Sketcher.Constraint("Tangent", 1, 1, 2, 1),
    Sketcher.Constraint("Coincident", 2, 2, 3, 1),
    Sketcher.Constraint("Coincident", 3, 2, 4, 1),
    Sketcher.Constraint("Tangent", 4, 2, 5, 1),
    Sketcher.Constraint("Tangent", 5, 2, 6, 1),
    Sketcher.Constraint("Coincident", 6, 2, 7, 1),
    Sketcher.Constraint("Coincident", 7, 2, 0, 1),
    Sketcher.Constraint("Coincident", 8, 2, 9, 1),
    Sketcher.Constraint("Coincident", 9, 2, 10, 1),
    Sketcher.Constraint("Tangent", 10, 2, 11, 2),
    Sketcher.Constraint("Tangent", 11, 1, 12, 1),
    Sketcher.Constraint("Coincident", 12, 2, 13, 1),
    Sketcher.Constraint("Coincident", 13, 2, 14, 1),
    Sketcher.Constraint("Tangent", 14, 2, 15, 1),
    Sketcher.Constraint("Tangent", 15, 2, 8, 1),
    Sketcher.Constraint("Vertical", 0),
    Sketcher.Constraint("Vertical", 2),
    Sketcher.Constraint("Horizontal", 3),
    Sketcher.Constraint("Vertical", 4),
    Sketcher.Constraint("Vertical", 6),
    Sketcher.Constraint("Horizontal", 7),
    Sketcher.Constraint("Vertical", 8),
    Sketcher.Constraint("Horizontal", 9),
    Sketcher.Constraint("Vertical", 10),
    Sketcher.Constraint("Vertical", 12),
    Sketcher.Constraint("Horizontal", 13),
    Sketcher.Constraint("Vertical", 14),
    Sketcher.Constraint("Coincident", 5, 3, 1, 3),
    Sketcher.Constraint("Coincident", 15, 3, 11, 3),
    Sketcher.Constraint("Equal", 5, 15),
    Sketcher.Constraint("Symmetric", 1, 3, 11, 3, -1, 1),
    Sketcher.Constraint("PointOnObject", 1, 3, -1),
    Sketcher.Constraint("Horizontal", 3, 2, 6, 2),
    Sketcher.Constraint("Horizontal", 7, 2, 8, 2),
    Sketcher.Constraint("Horizontal", 9, 2, 12, 2),
    Sketcher.Constraint("Equal", 13, 0),
    Sketcher.Constraint("Radius", 1, Q("2 mm")),
    Sketcher.Constraint("Radius", 5, Q("6 mm")),
    Sketcher.Constraint("Radius", 11, Q("3 mm")),
    Sketcher.Constraint("DistanceX", -1, 1, 1, 3, Q("20 mm")),
])
pad10 = body.newObject("PartDesign::Pad", "Pad009")
pad10.Profile = sketch17
pad10.Length = 1

sketch18 = body.newObject("Sketcher::SketchObject", "Sketch017")
sketch18.AttachmentSupport = (doc.getObject("XY_Plane"), [""])
sketch18.MapMode = "FlatFace"
sketch18.AttachmentOffset = App.Placement(App.Vector(0, 0, -1), App.Rotation())
sketch18.addGeometry([
    Part.LineSegment(App.Vector(-25, 10, 0), App.Vector(-25, 0, 0)),
    Part.ArcOfCircle(Part.Circle(App.Vector(-20, 0, 0), App.Vector(0, 0, 1), 5), math.radians(180), math.radians(360)),
    Part.LineSegment(App.Vector(-15, 0, 0), App.Vector(-15, 10, 0)),
    Part.ArcOfCircle(Part.Circle(App.Vector(-20, 10, 0), App.Vector(0, 0, 1), 5), math.radians(0), math.radians(180)),
    Part.LineSegment(App.Vector(25, 0, 0), App.Vector(25, 10, 0)),
    Part.ArcOfCircle(Part.Circle(App.Vector(20, 10, 0), App.Vector(0, 0, 1), 5), math.radians(0), math.radians(180)),
    Part.LineSegment(App.Vector(15, 10, 0), App.Vector(15, 0, 0)),
    Part.ArcOfCircle(Part.Circle(App.Vector(20, 0, 0), App.Vector(0, 0, 1), 5), math.radians(180), math.radians(360)),
], False)
sketch18.addConstraint([
    Sketcher.Constraint("Tangent", 0, 2, 1, 1),
    Sketcher.Constraint("Tangent", 1, 2, 2, 1),
    Sketcher.Constraint("Tangent", 2, 2, 3, 1),
    Sketcher.Constraint("Tangent", 3, 2, 0, 1),
    Sketcher.Constraint("Tangent", 4, 2, 5, 1),
    Sketcher.Constraint("Tangent", 5, 2, 6, 1),
    Sketcher.Constraint("Tangent", 6, 2, 7, 1),
    Sketcher.Constraint("Tangent", 7, 2, 4, 1),
    Sketcher.Constraint("Vertical", 0),
    Sketcher.Constraint("Vertical", 2),
    Sketcher.Constraint("Vertical", 4),
    Sketcher.Constraint("Vertical", 6),
    Sketcher.Constraint("Equal", 3, 5),
    Sketcher.Constraint("Symmetric", 1, 3, 7, 3, -1, 1),
    Sketcher.Constraint("PointOnObject", 1, 3, -1),
    Sketcher.Constraint("Horizontal", 3, 3, 5, 3),
    Sketcher.Constraint("Radius", 1, Q("5 mm")),
    Sketcher.Constraint("DistanceY", 0, 2, 0, 1, Q("10 mm")),
    Sketcher.Constraint("DistanceX", 1, 3, -1, 1, Q("20 mm")),
])
pocket8 = body.newObject("PartDesign::Pocket", "Pocket007")
pocket8.Profile = sketch18
pocket8.Length = 1
pocket8.Reversed = True

sketch19 = body.newObject("Sketcher::SketchObject", "Sketch018")
sketch19.AttachmentSupport = (doc.getObject("XY_Plane"), [""])
sketch19.MapMode = "FlatFace"
sketch19.AttachmentOffset = App.Placement(App.Vector(0, 0, -2), App.Rotation())
sketch19.addGeometry([
    Part.Circle(App.Vector(-35, -14.2, 0), App.Vector(0, 0, 1), 3),
    Part.Circle(App.Vector(-35, 19.8, 0), App.Vector(0, 0, 1), 3),
    Part.Circle(App.Vector(35, -14.2, 0), App.Vector(0, 0, 1), 3),
    Part.Circle(App.Vector(35, 19.8, 0), App.Vector(0, 0, 1), 3),
], False)
sketch19.addConstraint([
    Sketcher.Constraint("Equal", 0, 1),
    Sketcher.Constraint("Equal", 1, 2),
    Sketcher.Constraint("Equal", 2, 3),
    Sketcher.Constraint("Symmetric", 0, 3, 2, 3, -2),
    Sketcher.Constraint("Symmetric", 1, 3, 3, 3, -2),
    Sketcher.Constraint("Vertical", 0, 3, 1, 3),
    Sketcher.Constraint("Diameter", 0, Q("6 mm")),
    Sketcher.Constraint("DistanceX", 0, 3, -1, 1, Q("35 mm")),
    Sketcher.Constraint("DistanceY", 0, 3, 1, 3, Q("34 mm")),
    Sketcher.Constraint("DistanceY", 0, 3, -1, 1, Q("14.25 mm")),
])
pocket9 = body.newObject("PartDesign::Pocket", "Pocket008")
pocket9.Profile = sketch19
pocket9.Length = 1
pocket9.Reversed = True

sketch20 = body.newObject("Sketcher::SketchObject", "Sketch019")
sketch20.AttachmentSupport = (doc.getObject("XY_Plane"), [""])
sketch20.MapMode = "FlatFace"
sketch20.AttachmentOffset = App.Placement(App.Vector(0, 0, 18.5), App.Rotation())
sketch20.addGeometry([
    Part.Circle(App.Vector(-37.8, 58.5, 0), App.Vector(0, 0, 1), 3),
    Part.Circle(App.Vector(37.8, 58.5, 0), App.Vector(0, 0, 1), 3),
], False)
sketch20.addConstraint([
    Sketcher.Constraint("Equal", 0, 1),
    Sketcher.Constraint("Symmetric", 0, 3, 1, 3, -2),
    Sketcher.Constraint("Diameter", 0, Q("6 mm")),
    Sketcher.Constraint("DistanceY", -1, 1, 0, 3, Q("58.5 mm")),
    Sketcher.Constraint("DistanceX", 0, 3, 1, 3, Q("75.5 mm")),
])
pocket10 = body.newObject("PartDesign::Pocket", "Pocket009")
pocket10.Profile = sketch20
pocket10.Length = 1
pocket10.Reversed = True

doc.recompute()
